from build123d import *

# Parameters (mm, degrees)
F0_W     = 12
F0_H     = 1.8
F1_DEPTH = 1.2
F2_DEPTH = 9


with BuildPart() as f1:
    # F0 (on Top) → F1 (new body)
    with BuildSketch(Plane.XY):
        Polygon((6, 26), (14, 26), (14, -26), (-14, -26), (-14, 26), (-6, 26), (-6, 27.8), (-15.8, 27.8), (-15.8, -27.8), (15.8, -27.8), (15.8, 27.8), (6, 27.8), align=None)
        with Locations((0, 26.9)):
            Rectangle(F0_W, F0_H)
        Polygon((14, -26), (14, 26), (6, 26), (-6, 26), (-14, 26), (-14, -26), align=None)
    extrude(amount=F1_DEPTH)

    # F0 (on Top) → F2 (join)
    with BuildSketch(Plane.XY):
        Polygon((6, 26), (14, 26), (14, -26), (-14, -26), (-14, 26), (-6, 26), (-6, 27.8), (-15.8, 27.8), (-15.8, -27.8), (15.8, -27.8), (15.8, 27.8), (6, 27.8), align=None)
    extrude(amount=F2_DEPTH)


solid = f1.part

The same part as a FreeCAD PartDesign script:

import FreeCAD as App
import Part
import Sketcher
Q = App.Units.Quantity


def add_polygon(sketch, points):
    """Adds a closed chain of lines whose ends are joined by coincident constraints."""
    first, n = sketch.GeometryCount, len(points)
    for a, b in zip(points, points[1:] + points[:1]):
        sketch.addGeometry(Part.LineSegment(App.Vector(*a, 0), App.Vector(*b, 0)), False)
    for i in range(n):
        sketch.addConstraint(Sketcher.Constraint("Coincident", first + i, 2, first + (i + 1) % n, 1))

doc = App.newDocument("Part")
body = doc.addObject("PartDesign::Body", "Body")

sketch1 = body.newObject("Sketcher::SketchObject", "Sketch")
sketch1.AttachmentSupport = (doc.getObject("XY_Plane"), [""])
sketch1.MapMode = "FlatFace"
add_polygon(sketch1, [(-16, 28), (-16, -28), (16, -28), (16, 28)])
sketch1.addConstraint(Sketcher.Constraint("Vertical", 0))
sketch1.addConstraint(Sketcher.Constraint("Horizontal", 1))
sketch1.addConstraint(Sketcher.Constraint("Vertical", 2))
sketch1.addConstraint(Sketcher.Constraint("Horizontal", 3))
sketch1.addConstraint(Sketcher.Constraint("Symmetric", 0, 2, 2, 2, -1, 1))
sketch1.addConstraint(Sketcher.Constraint("DistanceX", 1, 1, 1, 2, Q("31.6 mm")))
sketch1.addConstraint(Sketcher.Constraint("DistanceY", 0, 2, 0, 1, Q("55.6 mm")))
pad1 = body.newObject("PartDesign::Pad", "Pad")
pad1.Profile = sketch1
pad1.Length = 1.2

sketch2 = body.newObject("Sketcher::SketchObject", "Sketch001")
sketch2.AttachmentSupport = (doc.getObject("XY_Plane"), [""])
sketch2.MapMode = "FlatFace"
add_polygon(sketch2, [(6, 26), (14, 26), (14, -26), (-14, -26), (-14, 26), (-6, 26), (-6, 27.8), (-15.8, 27.8), (-15.8, -27.8), (15.8, -27.8), (15.8, 27.8), (6, 27.8)])
sketch2.addConstraint(Sketcher.Constraint("Horizontal", 0))
sketch2.addConstraint(Sketcher.Constraint("Vertical", 1))
sketch2.addConstraint(Sketcher.Constraint("Horizontal", 2))
sketch2.addConstraint(Sketcher.Constraint("Vertical", 3))
sketch2.addConstraint(Sketcher.Constraint("Horizontal", 4))
sketch2.addConstraint(Sketcher.Constraint("Vertical", 5))
sketch2.addConstraint(Sketcher.Constraint("Horizontal", 6))
sketch2.addConstraint(Sketcher.Constraint("Vertical", 7))
sketch2.addConstraint(Sketcher.Constraint("Horizontal", 8))
sketch2.addConstraint(Sketcher.Constraint("Vertical", 9))
sketch2.addConstraint(Sketcher.Constraint("Horizontal", 10))
sketch2.addConstraint(Sketcher.Constraint("Vertical", 11))
sketch2.addConstraint(Sketcher.Constraint("Symmetric", 0, 2, 2, 2, -1, 1))
sketch2.addConstraint(Sketcher.Constraint("Symmetric", 6, 2, 8, 2, -1, 1))
sketch2.addConstraint(Sketcher.Constraint("Symmetric", 5, 2, 10, 2, -2))
sketch2.addConstraint(Sketcher.Constraint("Horizontal", 0, 2, 3, 2))
sketch2.addConstraint(Sketcher.Constraint("DistanceX", 0, 1, 0, 2, Q("8 mm")))
sketch2.addConstraint(Sketcher.Constraint("DistanceX", 2, 2, 2, 1, Q("28 mm")))
sketch2.addConstraint(Sketcher.Constraint("DistanceY", 1, 2, 1, 1, Q("52 mm")))
sketch2.addConstraint(Sketcher.Constraint("DistanceX", 6, 2, 6, 1, Q("9.8 mm")))
sketch2.addConstraint(Sketcher.Constraint("DistanceY", 5, 1, 5, 2, Q("1.8 mm")))
pad2 = body.newObject("PartDesign::Pad", "Pad001")
pad2.Profile = sketch2
pad2.Length = 9

doc.recompute()
